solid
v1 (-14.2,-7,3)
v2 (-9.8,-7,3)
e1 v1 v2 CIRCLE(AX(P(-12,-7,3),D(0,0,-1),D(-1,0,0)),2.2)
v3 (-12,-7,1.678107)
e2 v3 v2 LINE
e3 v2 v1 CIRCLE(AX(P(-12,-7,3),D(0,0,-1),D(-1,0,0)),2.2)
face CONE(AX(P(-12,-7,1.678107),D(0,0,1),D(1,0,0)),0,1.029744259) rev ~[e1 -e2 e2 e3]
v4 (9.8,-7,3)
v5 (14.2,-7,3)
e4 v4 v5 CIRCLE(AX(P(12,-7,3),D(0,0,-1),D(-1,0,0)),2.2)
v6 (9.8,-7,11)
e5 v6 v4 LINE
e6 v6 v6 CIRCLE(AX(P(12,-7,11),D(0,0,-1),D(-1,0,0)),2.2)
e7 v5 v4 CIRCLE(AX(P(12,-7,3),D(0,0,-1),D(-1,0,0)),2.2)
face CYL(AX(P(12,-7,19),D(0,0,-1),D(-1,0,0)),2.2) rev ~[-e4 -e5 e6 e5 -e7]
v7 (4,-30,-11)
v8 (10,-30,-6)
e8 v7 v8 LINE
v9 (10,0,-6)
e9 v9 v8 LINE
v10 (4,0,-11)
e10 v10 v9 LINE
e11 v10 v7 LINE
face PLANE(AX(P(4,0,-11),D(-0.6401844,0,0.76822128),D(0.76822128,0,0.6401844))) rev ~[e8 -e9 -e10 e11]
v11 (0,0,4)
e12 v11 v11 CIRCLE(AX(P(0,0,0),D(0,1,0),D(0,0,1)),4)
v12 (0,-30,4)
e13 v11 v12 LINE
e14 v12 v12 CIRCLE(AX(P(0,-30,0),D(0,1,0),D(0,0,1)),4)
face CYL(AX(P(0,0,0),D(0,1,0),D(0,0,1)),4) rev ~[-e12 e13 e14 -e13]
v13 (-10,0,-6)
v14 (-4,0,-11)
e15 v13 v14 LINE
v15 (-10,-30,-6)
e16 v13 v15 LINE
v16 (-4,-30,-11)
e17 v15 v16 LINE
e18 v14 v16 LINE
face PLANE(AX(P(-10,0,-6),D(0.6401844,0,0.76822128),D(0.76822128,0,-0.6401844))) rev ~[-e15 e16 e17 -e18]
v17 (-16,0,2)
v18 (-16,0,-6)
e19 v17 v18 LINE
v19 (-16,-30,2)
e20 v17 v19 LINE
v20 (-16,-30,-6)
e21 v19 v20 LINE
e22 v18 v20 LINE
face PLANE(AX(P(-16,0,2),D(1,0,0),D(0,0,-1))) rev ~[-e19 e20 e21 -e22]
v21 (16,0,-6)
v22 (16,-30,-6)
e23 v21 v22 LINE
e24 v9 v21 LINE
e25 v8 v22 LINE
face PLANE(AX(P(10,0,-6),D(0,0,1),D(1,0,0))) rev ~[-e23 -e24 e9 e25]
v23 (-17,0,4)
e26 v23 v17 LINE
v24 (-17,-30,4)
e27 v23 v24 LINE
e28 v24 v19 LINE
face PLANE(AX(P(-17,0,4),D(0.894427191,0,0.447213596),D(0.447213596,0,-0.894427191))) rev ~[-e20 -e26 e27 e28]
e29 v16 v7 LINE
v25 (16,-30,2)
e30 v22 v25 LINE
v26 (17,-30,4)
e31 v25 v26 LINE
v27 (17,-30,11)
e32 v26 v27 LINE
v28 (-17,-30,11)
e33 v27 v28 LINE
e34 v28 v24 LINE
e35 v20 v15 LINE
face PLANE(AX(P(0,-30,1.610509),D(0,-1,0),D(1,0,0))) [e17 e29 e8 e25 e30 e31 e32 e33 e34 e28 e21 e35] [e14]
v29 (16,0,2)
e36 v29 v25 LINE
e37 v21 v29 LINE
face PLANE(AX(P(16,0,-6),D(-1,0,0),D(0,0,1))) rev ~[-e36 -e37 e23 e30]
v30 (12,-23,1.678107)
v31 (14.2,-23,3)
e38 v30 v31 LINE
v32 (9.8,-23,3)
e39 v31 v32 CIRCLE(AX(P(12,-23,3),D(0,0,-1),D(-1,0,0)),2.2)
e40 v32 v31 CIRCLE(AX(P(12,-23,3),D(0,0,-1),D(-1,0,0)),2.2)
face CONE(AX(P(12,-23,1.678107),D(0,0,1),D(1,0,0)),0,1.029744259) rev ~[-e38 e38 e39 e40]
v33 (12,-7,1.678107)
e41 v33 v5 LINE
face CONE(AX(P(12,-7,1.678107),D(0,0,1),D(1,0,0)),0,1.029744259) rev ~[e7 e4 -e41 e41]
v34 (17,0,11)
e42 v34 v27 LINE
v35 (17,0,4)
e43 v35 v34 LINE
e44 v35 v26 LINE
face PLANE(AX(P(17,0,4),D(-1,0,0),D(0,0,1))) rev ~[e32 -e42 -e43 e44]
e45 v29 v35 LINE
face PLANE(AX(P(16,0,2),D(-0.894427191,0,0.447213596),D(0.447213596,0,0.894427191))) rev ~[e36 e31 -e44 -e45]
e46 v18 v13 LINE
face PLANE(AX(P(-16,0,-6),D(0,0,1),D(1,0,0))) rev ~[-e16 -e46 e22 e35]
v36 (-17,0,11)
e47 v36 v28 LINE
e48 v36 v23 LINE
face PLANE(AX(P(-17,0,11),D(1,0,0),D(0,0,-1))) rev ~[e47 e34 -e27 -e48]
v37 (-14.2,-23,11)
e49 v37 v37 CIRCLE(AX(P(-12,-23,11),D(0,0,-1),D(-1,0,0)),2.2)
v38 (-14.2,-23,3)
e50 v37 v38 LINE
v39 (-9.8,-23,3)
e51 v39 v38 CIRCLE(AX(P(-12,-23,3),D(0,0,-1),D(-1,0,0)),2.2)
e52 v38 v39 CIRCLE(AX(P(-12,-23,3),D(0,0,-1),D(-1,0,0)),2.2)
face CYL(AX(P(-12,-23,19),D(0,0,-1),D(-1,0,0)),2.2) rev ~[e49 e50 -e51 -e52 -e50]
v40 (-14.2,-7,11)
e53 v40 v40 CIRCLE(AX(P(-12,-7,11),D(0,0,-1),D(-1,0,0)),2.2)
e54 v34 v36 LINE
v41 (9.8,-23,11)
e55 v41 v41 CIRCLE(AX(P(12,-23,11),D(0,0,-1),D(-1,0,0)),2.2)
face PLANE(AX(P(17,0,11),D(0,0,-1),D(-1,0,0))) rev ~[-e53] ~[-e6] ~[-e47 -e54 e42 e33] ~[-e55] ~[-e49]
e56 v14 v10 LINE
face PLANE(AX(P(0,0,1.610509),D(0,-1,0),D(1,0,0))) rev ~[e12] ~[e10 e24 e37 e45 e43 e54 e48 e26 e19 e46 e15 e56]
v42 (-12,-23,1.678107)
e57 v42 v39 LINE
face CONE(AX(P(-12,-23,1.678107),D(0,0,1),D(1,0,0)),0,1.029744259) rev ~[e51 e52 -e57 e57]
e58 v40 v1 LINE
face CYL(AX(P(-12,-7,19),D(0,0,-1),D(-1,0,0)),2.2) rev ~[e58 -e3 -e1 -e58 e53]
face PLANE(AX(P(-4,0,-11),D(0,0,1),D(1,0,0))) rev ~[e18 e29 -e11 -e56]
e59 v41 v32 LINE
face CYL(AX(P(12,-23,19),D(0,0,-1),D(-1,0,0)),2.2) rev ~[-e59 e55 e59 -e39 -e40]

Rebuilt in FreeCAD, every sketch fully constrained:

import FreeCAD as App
import Part
import Sketcher
from FreeCAD import Vector
Q = App.Units.Quantity

doc = App.newDocument("Part")
body = doc.addObject("PartDesign::Body", "Body")

sketch1 = body.newObject("Sketcher::SketchObject", "Sketch")
sketch1.AttachmentSupport = (doc.getObject("XZ_Plane"), [""])
sketch1.MapMode = "FlatFace"
sketch1.addGeometry(Part.LineSegment(Vector(17, 11, 0), Vector(-17, 11, 0)), False)
sketch1.addGeometry(Part.LineSegment(Vector(-17, 11, 0), Vector(-17, 4, 0)), False)
sketch1.addGeometry(Part.LineSegment(Vector(-17, 4, 0), Vector(-16, 2, 0)), False)
sketch1.addGeometry(Part.LineSegment(Vector(-16, 2, 0), Vector(-16, -6, 0)), False)
sketch1.addGeometry(Part.LineSegment(Vector(-16, -6, 0), Vector(-10, -6, 0)), False)
sketch1.addGeometry(Part.LineSegment(Vector(-10, -6, 0), Vector(-4, -11, 0)), False)
sketch1.addGeometry(Part.LineSegment(Vector(-4, -11, 0), Vector(4, -11, 0)), False)
sketch1.addGeometry(Part.LineSegment(Vector(4, -11, 0), Vector(10, -6, 0)), False)
sketch1.addGeometry(Part.LineSegment(Vector(10, -6, 0), Vector(16, -6, 0)), False)
sketch1.addGeometry(Part.LineSegment(Vector(16, -6, 0), Vector(16, 2, 0)), False)
sketch1.addGeometry(Part.LineSegment(Vector(16, 2, 0), Vector(17, 4, 0)), False)
sketch1.addGeometry(Part.LineSegment(Vector(17, 4, 0), Vector(17, 11, 0)), False)
sketch1.addGeometry(Part.Circle(Vector(0, 0, 0), Vector(0, 0, 1), 4), False)
sketch1.addConstraint(Sketcher.Constraint("Coincident", 0, 2, 1, 1))
sketch1.addConstraint(Sketcher.Constraint("Coincident", 1, 2, 2, 1))
sketch1.addConstraint(Sketcher.Constraint("Coincident", 2, 2, 3, 1))
sketch1.addConstraint(Sketcher.Constraint("Coincident", 3, 2, 4, 1))
sketch1.addConstraint(Sketcher.Constraint("Coincident", 4, 2, 5, 1))
sketch1.addConstraint(Sketcher.Constraint("Coincident", 5, 2, 6, 1))
sketch1.addConstraint(Sketcher.Constraint("Coincident", 6, 2, 7, 1))
sketch1.addConstraint(Sketcher.Constraint("Coincident", 7, 2, 8, 1))
sketch1.addConstraint(Sketcher.Constraint("Coincident", 8, 2, 9, 1))
sketch1.addConstraint(Sketcher.Constraint("Coincident", 9, 2, 10, 1))
sketch1.addConstraint(Sketcher.Constraint("Coincident", 10, 2, 11, 1))
sketch1.addConstraint(Sketcher.Constraint("Coincident", 11, 2, 0, 1))
sketch1.addConstraint(Sketcher.Constraint("Horizontal", 0))
sketch1.addConstraint(Sketcher.Constraint("Vertical", 1))
sketch1.addConstraint(Sketcher.Constraint("Vertical", 3))
sketch1.addConstraint(Sketcher.Constraint("Horizontal", 4))
sketch1.addConstraint(Sketcher.Constraint("Horizontal", 6))
sketch1.addConstraint(Sketcher.Constraint("Horizontal", 8))
sketch1.addConstraint(Sketcher.Constraint("Vertical", 9))
sketch1.addConstraint(Sketcher.Constraint("Vertical", 11))
sketch1.addConstraint(Sketcher.Constraint("Coincident", 12, 3, -1, 1))
sketch1.addConstraint(Sketcher.Constraint("Symmetric", 4, 2, 7, 2, -2))
sketch1.addConstraint(Sketcher.Constraint("Symmetric", 2, 2, 9, 2, -2))
sketch1.addConstraint(Sketcher.Constraint("Symmetric", 1, 2, 10, 2, -2))
sketch1.addConstraint(Sketcher.Constraint("Equal", 6, 3))
sketch1.addConstraint(Sketcher.Constraint("Equal", 5, 7))
sketch1.addConstraint(Sketcher.Constraint("Diameter", 12, Q("8 mm")))
sketch1.addConstraint(Sketcher.Constraint("DistanceX", 0, 2, 0, 1, Q("34 mm")))
sketch1.addConstraint(Sketcher.Constraint("DistanceX", 4, 1, 4, 2, Q("6 mm")))
sketch1.addConstraint(Sketcher.Constraint("DistanceX", 6, 1, 6, 2, Q("8 mm")))
sketch1.addConstraint(Sketcher.Constraint("DistanceY", 1, 2, 1, 1, Q("7 mm")))
sketch1.addConstraint(Sketcher.Constraint("DistanceY", -1, 1, 0, 2, Q("11 mm")))
sketch1.addConstraint(Sketcher.Constraint("DistanceX", 2, 2, -1, 1, Q("16 mm")))
sketch1.addConstraint(Sketcher.Constraint("DistanceY", -1, 1, 2, 2, Q("2 mm")))
sketch1.addConstraint(Sketcher.Constraint("DistanceY", 5, 2, -1, 1, Q("11 mm")))
pad1 = body.newObject("PartDesign::Pad", "Pad")
pad1.Profile = sketch1
pad1.Length = 30

sketch2 = body.newObject("Sketcher::SketchObject", "Sketch001")
sketch2.AttachmentSupport = (doc.getObject("XY_Plane"), [""])
sketch2.MapMode = "FlatFace"
sketch2.AttachmentOffset = App.Placement(Vector(0, 0, 11), App.Rotation())
sketch2.addGeometry(Part.Circle(Vector(-12, -23, 0), Vector(0, 0, 1), 2.2), False)
sketch2.addGeometry(Part.Circle(Vector(-12, -7, 0), Vector(0, 0, 1), 2.2), False)
sketch2.addGeometry(Part.Circle(Vector(12, -7, 0), Vector(0, 0, 1), 2.2), False)
sketch2.addGeometry(Part.Circle(Vector(12, -23, 0), Vector(0, 0, 1), 2.2), False)
sketch2.addConstraint(Sketcher.Constraint("Equal", 0, 1))
sketch2.addConstraint(Sketcher.Constraint("Equal", 1, 2))
sketch2.addConstraint(Sketcher.Constraint("Equal", 2, 3))
sketch2.addConstraint(Sketcher.Constraint("Symmetric", 1, 3, 2, 3, -2))
sketch2.addConstraint(Sketcher.Constraint("Symmetric", 0, 3, 3, 3, -2))
sketch2.addConstraint(Sketcher.Constraint("Vertical", 0, 3, 1, 3))
sketch2.addConstraint(Sketcher.Constraint("Diameter", 0, Q("4.4 mm")))
sketch2.addConstraint(Sketcher.Constraint("DistanceX", 0, 3, -1, 1, Q("12 mm")))
sketch2.addConstraint(Sketcher.Constraint("DistanceY", 0, 3, -1, 1, Q("23 mm")))
sketch2.addConstraint(Sketcher.Constraint("DistanceY", 1, 3, -1, 1, Q("7 mm")))
doc.recompute()
hole = body.newObject("PartDesign::Hole", "Hole")
hole.Profile = sketch2
hole.ThreadType = "None"
hole.Diameter = 4.4
hole.DepthType = "Dimension"
hole.Depth = 8
hole.DrillPoint = "Angled"
hole.DrillPointAngle = 118

doc.recompute()
